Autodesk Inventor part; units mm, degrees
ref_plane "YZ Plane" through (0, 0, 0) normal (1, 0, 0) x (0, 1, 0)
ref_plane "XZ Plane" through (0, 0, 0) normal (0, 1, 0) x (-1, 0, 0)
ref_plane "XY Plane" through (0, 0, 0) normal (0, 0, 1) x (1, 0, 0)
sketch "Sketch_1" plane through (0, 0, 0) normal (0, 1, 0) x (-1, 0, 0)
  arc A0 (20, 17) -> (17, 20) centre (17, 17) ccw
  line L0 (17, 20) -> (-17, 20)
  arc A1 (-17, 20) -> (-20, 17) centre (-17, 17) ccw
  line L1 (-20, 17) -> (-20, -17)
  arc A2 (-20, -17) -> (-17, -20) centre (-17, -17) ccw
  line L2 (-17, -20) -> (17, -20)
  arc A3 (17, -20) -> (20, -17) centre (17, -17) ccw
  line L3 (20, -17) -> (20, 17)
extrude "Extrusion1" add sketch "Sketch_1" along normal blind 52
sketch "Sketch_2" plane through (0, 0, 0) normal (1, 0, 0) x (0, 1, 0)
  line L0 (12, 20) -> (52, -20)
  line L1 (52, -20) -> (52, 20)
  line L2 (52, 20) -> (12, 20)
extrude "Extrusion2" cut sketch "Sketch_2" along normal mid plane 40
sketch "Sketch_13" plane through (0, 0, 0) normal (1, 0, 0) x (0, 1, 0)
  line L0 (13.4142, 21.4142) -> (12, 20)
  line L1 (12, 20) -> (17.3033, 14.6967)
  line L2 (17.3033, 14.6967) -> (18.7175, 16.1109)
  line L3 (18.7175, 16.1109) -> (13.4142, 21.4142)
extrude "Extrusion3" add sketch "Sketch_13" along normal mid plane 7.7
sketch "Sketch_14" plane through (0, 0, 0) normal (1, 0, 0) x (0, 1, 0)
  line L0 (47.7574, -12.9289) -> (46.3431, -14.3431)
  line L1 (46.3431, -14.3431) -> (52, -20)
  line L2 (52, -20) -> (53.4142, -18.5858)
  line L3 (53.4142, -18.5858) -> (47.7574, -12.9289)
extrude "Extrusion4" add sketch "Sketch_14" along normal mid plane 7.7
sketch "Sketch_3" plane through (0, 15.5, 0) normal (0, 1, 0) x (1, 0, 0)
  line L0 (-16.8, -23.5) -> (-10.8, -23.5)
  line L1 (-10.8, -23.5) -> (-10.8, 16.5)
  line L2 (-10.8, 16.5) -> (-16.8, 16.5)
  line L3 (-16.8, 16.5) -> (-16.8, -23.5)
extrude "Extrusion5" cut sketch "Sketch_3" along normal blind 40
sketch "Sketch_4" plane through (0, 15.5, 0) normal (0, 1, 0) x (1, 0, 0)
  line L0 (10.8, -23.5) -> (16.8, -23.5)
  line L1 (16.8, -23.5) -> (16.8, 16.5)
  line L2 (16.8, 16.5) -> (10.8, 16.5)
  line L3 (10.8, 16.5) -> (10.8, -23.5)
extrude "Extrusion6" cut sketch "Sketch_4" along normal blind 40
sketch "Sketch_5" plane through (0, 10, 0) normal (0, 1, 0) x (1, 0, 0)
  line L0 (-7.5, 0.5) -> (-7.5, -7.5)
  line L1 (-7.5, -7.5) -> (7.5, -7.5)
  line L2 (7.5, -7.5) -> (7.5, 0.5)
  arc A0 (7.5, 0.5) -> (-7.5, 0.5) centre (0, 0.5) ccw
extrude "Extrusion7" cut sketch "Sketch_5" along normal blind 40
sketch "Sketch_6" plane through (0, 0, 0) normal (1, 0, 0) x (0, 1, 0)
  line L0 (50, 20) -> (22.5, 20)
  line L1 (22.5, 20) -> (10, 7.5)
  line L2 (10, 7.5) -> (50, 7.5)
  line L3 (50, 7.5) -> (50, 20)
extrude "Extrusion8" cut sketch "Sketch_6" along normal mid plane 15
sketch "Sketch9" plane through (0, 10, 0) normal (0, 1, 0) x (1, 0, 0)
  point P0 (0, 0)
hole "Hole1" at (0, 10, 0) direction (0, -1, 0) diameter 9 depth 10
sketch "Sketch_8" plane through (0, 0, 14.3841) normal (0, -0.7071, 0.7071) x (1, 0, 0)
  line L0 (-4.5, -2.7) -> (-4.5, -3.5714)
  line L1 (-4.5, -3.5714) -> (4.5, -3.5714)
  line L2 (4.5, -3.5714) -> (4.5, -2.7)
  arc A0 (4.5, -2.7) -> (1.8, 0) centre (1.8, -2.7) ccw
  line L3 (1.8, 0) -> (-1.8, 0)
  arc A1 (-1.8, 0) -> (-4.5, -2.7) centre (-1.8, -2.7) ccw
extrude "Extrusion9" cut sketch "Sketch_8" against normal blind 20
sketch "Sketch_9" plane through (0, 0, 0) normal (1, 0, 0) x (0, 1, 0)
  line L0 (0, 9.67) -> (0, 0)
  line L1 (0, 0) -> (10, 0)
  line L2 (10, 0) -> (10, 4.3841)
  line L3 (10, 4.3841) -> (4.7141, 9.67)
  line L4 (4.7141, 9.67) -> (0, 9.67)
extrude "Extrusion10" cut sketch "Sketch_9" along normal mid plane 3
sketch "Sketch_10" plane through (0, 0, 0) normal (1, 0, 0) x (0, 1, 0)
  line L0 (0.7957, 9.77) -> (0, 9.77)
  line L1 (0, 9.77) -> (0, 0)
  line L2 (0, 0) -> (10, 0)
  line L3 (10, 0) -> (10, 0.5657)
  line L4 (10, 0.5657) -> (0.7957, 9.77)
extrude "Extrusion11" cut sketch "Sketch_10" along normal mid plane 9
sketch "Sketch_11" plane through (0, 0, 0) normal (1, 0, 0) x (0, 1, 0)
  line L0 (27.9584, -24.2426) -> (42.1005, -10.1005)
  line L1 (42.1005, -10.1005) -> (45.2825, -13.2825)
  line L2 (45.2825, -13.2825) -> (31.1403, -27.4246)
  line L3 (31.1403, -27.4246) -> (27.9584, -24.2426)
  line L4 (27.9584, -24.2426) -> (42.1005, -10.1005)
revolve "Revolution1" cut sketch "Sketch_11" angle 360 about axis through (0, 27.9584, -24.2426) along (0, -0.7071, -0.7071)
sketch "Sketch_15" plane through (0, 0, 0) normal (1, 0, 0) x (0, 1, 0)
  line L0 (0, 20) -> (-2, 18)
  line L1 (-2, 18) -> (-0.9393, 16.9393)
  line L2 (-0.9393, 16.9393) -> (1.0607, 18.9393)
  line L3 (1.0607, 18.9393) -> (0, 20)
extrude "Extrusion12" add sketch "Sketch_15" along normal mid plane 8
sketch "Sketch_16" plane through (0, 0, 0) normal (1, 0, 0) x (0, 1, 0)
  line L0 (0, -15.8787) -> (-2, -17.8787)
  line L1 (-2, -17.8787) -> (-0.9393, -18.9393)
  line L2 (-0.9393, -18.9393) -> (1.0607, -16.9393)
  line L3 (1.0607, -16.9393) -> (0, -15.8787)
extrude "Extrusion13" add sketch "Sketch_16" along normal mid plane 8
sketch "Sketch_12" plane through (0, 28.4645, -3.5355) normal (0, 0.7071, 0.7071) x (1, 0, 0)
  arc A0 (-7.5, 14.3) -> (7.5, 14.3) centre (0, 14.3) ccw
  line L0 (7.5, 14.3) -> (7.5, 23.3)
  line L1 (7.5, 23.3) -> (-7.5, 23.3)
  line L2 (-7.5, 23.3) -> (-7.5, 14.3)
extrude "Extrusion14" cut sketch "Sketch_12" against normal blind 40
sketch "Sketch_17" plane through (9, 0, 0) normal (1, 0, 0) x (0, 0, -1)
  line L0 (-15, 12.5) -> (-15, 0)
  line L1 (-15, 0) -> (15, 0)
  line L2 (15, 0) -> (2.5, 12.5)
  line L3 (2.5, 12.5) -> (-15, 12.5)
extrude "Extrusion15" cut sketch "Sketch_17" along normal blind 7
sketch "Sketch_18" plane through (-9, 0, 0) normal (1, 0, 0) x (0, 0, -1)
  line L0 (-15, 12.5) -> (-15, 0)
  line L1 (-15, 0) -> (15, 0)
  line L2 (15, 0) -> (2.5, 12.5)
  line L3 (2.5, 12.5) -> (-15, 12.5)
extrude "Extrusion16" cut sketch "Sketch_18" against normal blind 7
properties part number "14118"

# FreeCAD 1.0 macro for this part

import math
import FreeCAD as App
import Part
import Sketcher
from FreeCAD import Vector
Q = App.Units.Quantity


def add_polygon(sketch, points):
    """Adds a closed chain of lines whose ends are joined by coincident constraints."""
    first, n = sketch.GeometryCount, len(points)
    for a, b in zip(points, points[1:] + points[:1]):
        sketch.addGeometry(Part.LineSegment(App.Vector(*a, 0), App.Vector(*b, 0)), False)
    for i in range(n):
        sketch.addConstraint(Sketcher.Constraint("Coincident", first + i, 2, first + (i + 1) % n, 1))

doc = App.newDocument("Part")
body = doc.addObject("PartDesign::Body", "Body")

sketch1 = body.newObject("Sketcher::SketchObject", "Sketch")
sketch1.AttachmentSupport = (doc.getObject("XZ_Plane"), [""])
sketch1.MapMode = "FlatFace"
sketch1.addGeometry(Part.LineSegment(Vector(-20, -17, 0), Vector(-20, 17, 0)), False)
sketch1.addGeometry(Part.ArcOfCircle(Part.Circle(Vector(-17, 17, 0), Vector(0, 0, 1), 3), math.radians(90), math.radians(180)), False)
sketch1.addGeometry(Part.LineSegment(Vector(-17, 20, 0), Vector(17, 20, 0)), False)
sketch1.addGeometry(Part.ArcOfCircle(Part.Circle(Vector(17, 17, 0), Vector(0, 0, 1), 3), math.radians(0), math.radians(90)), False)
sketch1.addGeometry(Part.LineSegment(Vector(20, 17, 0), Vector(20, -17, 0)), False)
sketch1.addGeometry(Part.ArcOfCircle(Part.Circle(Vector(17, -17, 0), Vector(0, 0, 1), 3), math.radians(-90), math.radians(0)), False)
sketch1.addGeometry(Part.LineSegment(Vector(17, -20, 0), Vector(-17, -20, 0)), False)
sketch1.addGeometry(Part.ArcOfCircle(Part.Circle(Vector(-17, -17, 0), Vector(0, 0, 1), 3), math.radians(180), math.radians(270)), False)
sketch1.addConstraint(Sketcher.Constraint("Tangent", 0, 2, 1, 2))
sketch1.addConstraint(Sketcher.Constraint("Tangent", 1, 1, 2, 1))
sketch1.addConstraint(Sketcher.Constraint("Tangent", 2, 2, 3, 2))
sketch1.addConstraint(Sketcher.Constraint("Tangent", 3, 1, 4, 1))
sketch1.addConstraint(Sketcher.Constraint("Tangent", 4, 2, 5, 2))
sketch1.addConstraint(Sketcher.Constraint("Tangent", 5, 1, 6, 1))
sketch1.addConstraint(Sketcher.Constraint("Tangent", 6, 2, 7, 2))
sketch1.addConstraint(Sketcher.Constraint("Tangent", 7, 1, 0, 1))
sketch1.addConstraint(Sketcher.Constraint("Vertical", 0))
sketch1.addConstraint(Sketcher.Constraint("Horizontal", 2))
sketch1.addConstraint(Sketcher.Constraint("Vertical", 4))
sketch1.addConstraint(Sketcher.Constraint("Horizontal", 6))
sketch1.addConstraint(Sketcher.Constraint("Equal", 1, 3))
sketch1.addConstraint(Sketcher.Constraint("Equal", 3, 5))
sketch1.addConstraint(Sketcher.Constraint("Equal", 5, 7))
sketch1.addConstraint(Sketcher.Constraint("Symmetric", 1, 3, 5, 3, -1, 1))
sketch1.addConstraint(Sketcher.Constraint("Equal", 6, 0))
sketch1.addConstraint(Sketcher.Constraint("Radius", 1, Q("3 mm")))
sketch1.addConstraint(Sketcher.Constraint("DistanceX", 2, 1, 2, 2, Q("34 mm")))
pad1 = body.newObject("PartDesign::Pad", "Pad")
pad1.Profile = sketch1
pad1.Length = 52
pad1.Reversed = True

sketch2 = body.newObject("Sketcher::SketchObject", "Sketch001")
sketch2.AttachmentSupport = (doc.getObject("YZ_Plane"), [""])
sketch2.MapMode = "FlatFace"
add_polygon(sketch2, [(52, 20), (12, 20), (52, -20)])
sketch2.addConstraint(Sketcher.Constraint("Horizontal", 0))
sketch2.addConstraint(Sketcher.Constraint("Vertical", 2))
sketch2.addConstraint(Sketcher.Constraint("Equal", 0, 2))
sketch2.addConstraint(Sketcher.Constraint("DistanceX", 0, 2, 0, 1, Q("40 mm")))
sketch2.addConstraint(Sketcher.Constraint("DistanceX", -1, 1, 0, 2, Q("12 mm")))
sketch2.addConstraint(Sketcher.Constraint("DistanceY", -1, 1, 0, 2, Q("20 mm")))
pocket1 = body.newObject("PartDesign::Pocket", "Pocket")
pocket1.Profile = sketch2
pocket1.Length = 40
pocket1.Midplane = True

sketch3 = body.newObject("Sketcher::SketchObject", "Sketch002")
sketch3.AttachmentSupport = (doc.getObject("YZ_Plane"), [""])
sketch3.MapMode = "FlatFace"
add_polygon(sketch3, [(18.7175, 16.1109), (13.4142, 21.4142), (12, 20), (17.3033, 14.6967)])
sketch3.addConstraint(Sketcher.Constraint("Perpendicular", 0, 1))
sketch3.addConstraint(Sketcher.Constraint("Perpendicular", 1, 2))
sketch3.addConstraint(Sketcher.Constraint("Perpendicular", 2, 3))
sketch3.addConstraint(Sketcher.Constraint("Angle", 0, Q("135 deg")))
sketch3.addConstraint(Sketcher.Constraint("Distance", 1, Q("2 mm")))
sketch3.addConstraint(Sketcher.Constraint("DistanceX", -1, 1, 1, 2, Q("12 mm")))
sketch3.addConstraint(Sketcher.Constraint("DistanceY", -1, 1, 1, 2, Q("20 mm")))
sketch3.addConstraint(Sketcher.Constraint("Distance", 0, Q("7.5 mm")))
pad2 = body.newObject("PartDesign::Pad", "Pad001")
pad2.Profile = sketch3
pad2.Length = 7.7
pad2.Midplane = True

sketch4 = body.newObject("Sketcher::SketchObject", "Sketch003")
sketch4.AttachmentSupport = (doc.getObject("YZ_Plane"), [""])
sketch4.MapMode = "FlatFace"
add_polygon(sketch4, [(53.4142, -18.5858), (47.7574, -12.9289), (46.3431, -14.3431), (52, -20)])
sketch4.addConstraint(Sketcher.Constraint("Perpendicular", 0, 1))
sketch4.addConstraint(Sketcher.Constraint("Perpendicular", 1, 2))
sketch4.addConstraint(Sketcher.Constraint("Perpendicular", 2, 3))
sketch4.addConstraint(Sketcher.Constraint("Angle", 0, Q("134.9995 deg")))
sketch4.addConstraint(Sketcher.Constraint("Distance", 0, Q("8 mm")))
sketch4.addConstraint(Sketcher.Constraint("Distance", 1, Q("2 mm")))
sketch4.addConstraint(Sketcher.Constraint("DistanceX", -1, 1, 2, 2, Q("52 mm")))
sketch4.addConstraint(Sketcher.Constraint("DistanceY", 2, 2, -1, 1, Q("20 mm")))
pad3 = body.newObject("PartDesign::Pad", "Pad002")
pad3.Profile = sketch4
pad3.Length = 7.7
pad3.Midplane = True

sketch5 = body.newObject("Sketcher::SketchObject", "Sketch004")
sketch5.AttachmentSupport = (doc.getObject("XZ_Plane"), [""])
sketch5.MapMode = "FlatFace"
sketch5.AttachmentOffset = App.Placement(Vector(0, 0, -15.5), App.Rotation())
add_polygon(sketch5, [(-16.8, -16.5), (-16.8, 23.5), (-10.8, 23.5), (-10.8, -16.5)])
sketch5.addConstraint(Sketcher.Constraint("Vertical", 0))
sketch5.addConstraint(Sketcher.Constraint("Horizontal", 1))
sketch5.addConstraint(Sketcher.Constraint("Vertical", 2))
sketch5.addConstraint(Sketcher.Constraint("Horizontal", 3))
sketch5.addConstraint(Sketcher.Constraint("DistanceX", 1, 1, 1, 2, Q("6 mm")))
sketch5.addConstraint(Sketcher.Constraint("DistanceY", 0, 1, 0, 2, Q("40 mm")))
sketch5.addConstraint(Sketcher.Constraint("DistanceX", 0, 2, -1, 1, Q("16.8 mm")))
sketch5.addConstraint(Sketcher.Constraint("DistanceY", -1, 1, 0, 2, Q("23.5 mm")))
pocket2 = body.newObject("PartDesign::Pocket", "Pocket001")
pocket2.Profile = sketch5
pocket2.Length = 40

sketch6 = body.newObject("Sketcher::SketchObject", "Sketch005")
sketch6.AttachmentSupport = (doc.getObject("XZ_Plane"), [""])
sketch6.MapMode = "FlatFace"
sketch6.AttachmentOffset = App.Placement(Vector(0, 0, -15.5), App.Rotation())
add_polygon(sketch6, [(10.8, -16.5), (10.8, 23.5), (16.8, 23.5), (16.8, -16.5)])
sketch6.addConstraint(Sketcher.Constraint("Vertical", 0))
sketch6.addConstraint(Sketcher.Constraint("Horizontal", 1))
sketch6.addConstraint(Sketcher.Constraint("Vertical", 2))
sketch6.addConstraint(Sketcher.Constraint("Horizontal", 3))
sketch6.addConstraint(Sketcher.Constraint("DistanceX", 1, 1, 1, 2, Q("6 mm")))
sketch6.addConstraint(Sketcher.Constraint("DistanceY", 0, 1, 0, 2, Q("40 mm")))
sketch6.addConstraint(Sketcher.Constraint("DistanceX", -1, 1, 0, 2, Q("10.8 mm")))
sketch6.addConstraint(Sketcher.Constraint("DistanceY", -1, 1, 0, 2, Q("23.5 mm")))
pocket3 = body.newObject("PartDesign::Pocket", "Pocket002")
pocket3.Profile = sketch6
pocket3.Length = 40

sketch7 = body.newObject("Sketcher::SketchObject", "Sketch006")
sketch7.AttachmentSupport = (doc.getObject("XZ_Plane"), [""])
sketch7.MapMode = "FlatFace"
sketch7.AttachmentOffset = App.Placement(Vector(0, 0, -10), App.Rotation())
sketch7.addGeometry(Part.ArcOfCircle(Part.Circle(Vector(0, -0.5, 0), Vector(0, 0, 1), 7.5), math.radians(180), math.radians(360)), False)
sketch7.addGeometry(Part.LineSegment(Vector(-7.5, -0.5, 0), Vector(-7.5, 7.5, 0)), False)
sketch7.addGeometry(Part.LineSegment(Vector(-7.5, 7.5, 0), Vector(7.5, 7.5, 0)), False)
sketch7.addGeometry(Part.LineSegment(Vector(7.5, 7.5, 0), Vector(7.5, -0.5, 0)), False)
sketch7.addConstraint(Sketcher.Constraint("Tangent", 0, 1, 1, 1))
sketch7.addConstraint(Sketcher.Constraint("Coincident", 1, 2, 2, 1))
sketch7.addConstraint(Sketcher.Constraint("Coincident", 2, 2, 3, 1))
sketch7.addConstraint(Sketcher.Constraint("Tangent", 3, 2, 0, 2))
sketch7.addConstraint(Sketcher.Constraint("Vertical", 1))
sketch7.addConstraint(Sketcher.Constraint("Horizontal", 2))
sketch7.addConstraint(Sketcher.Constraint("Vertical", 3))
sketch7.addConstraint(Sketcher.Constraint("PointOnObject", 0, 3, -2))
sketch7.addConstraint(Sketcher.Constraint("Radius", 0, Q("7.5 mm")))
sketch7.addConstraint(Sketcher.Constraint("DistanceY", 1, 1, 1, 2, Q("8 mm")))
sketch7.addConstraint(Sketcher.Constraint("DistanceY", 0, 3, -1, 1, Q("0.5 mm")))
pocket4 = body.newObject("PartDesign::Pocket", "Pocket003")
pocket4.Profile = sketch7
pocket4.Length = 40

sketch8 = body.newObject("Sketcher::SketchObject", "Sketch007")
sketch8.AttachmentSupport = (doc.getObject("YZ_Plane"), [""])
sketch8.MapMode = "FlatFace"
add_polygon(sketch8, [(50, 7.5), (50, 20), (22.5, 20), (10, 7.5)])
sketch8.addConstraint(Sketcher.Constraint("Vertical", 0))
sketch8.addConstraint(Sketcher.Constraint("Horizontal", 1))
sketch8.addConstraint(Sketcher.Constraint("Horizontal", 3))
sketch8.addConstraint(Sketcher.Constraint("DistanceX", 3, 1, 3, 2, Q("40 mm")))
sketch8.addConstraint(Sketcher.Constraint("Angle", 2, Q("-135 deg")))
sketch8.addConstraint(Sketcher.Constraint("DistanceX", 1, 2, 1, 1, Q("27.5 mm")))
sketch8.addConstraint(Sketcher.Constraint("DistanceX", -1, 1, 0, 2, Q("50 mm")))
sketch8.addConstraint(Sketcher.Constraint("DistanceY", -1, 1, 0, 2, Q("20 mm")))
pocket5 = body.newObject("PartDesign::Pocket", "Pocket004")
pocket5.Profile = sketch8
pocket5.Length = 15
pocket5.Midplane = True

sketch9 = body.newObject("Sketcher::SketchObject", "Sketch008")
sketch9.AttachmentSupport = (doc.getObject("XZ_Plane"), [""])
sketch9.MapMode = "FlatFace"
sketch9.AttachmentOffset = App.Placement(Vector(0, 0, -10), App.Rotation())
sketch9.addGeometry(Part.Circle(Vector(0, 0, 0), Vector(0, 0, 1), 4.5), False)
sketch9.addConstraint(Sketcher.Constraint("Coincident", 0, 3, -1, 1))
sketch9.addConstraint(Sketcher.Constraint("Diameter", 0, Q("9 mm")))
doc.recompute()
hole = body.newObject("PartDesign::Hole", "Hole")
hole.Profile = sketch9
hole.ThreadType = "None"
hole.Diameter = 9
hole.DepthType = "Dimension"
hole.Depth = 10
hole.DrillPoint = "Flat"
hole.Reversed = True

sketch10 = body.newObject("Sketcher::SketchObject", "Sketch009")
sketch10.Placement = App.Placement(Vector(0, 0, 14.3841), App.Rotation(Vector(1, 0, 0), Vector(0, 0.707106781, 0.707106781), Vector(0, -0.707106781, 0.707106781), "ZXY"))
sketch10.addGeometry(Part.ArcOfCircle(Part.Circle(Vector(-1.8, -2.7, 0), Vector(0, 0, 1), 2.7), math.radians(90), math.radians(180)), False)
sketch10.addGeometry(Part.LineSegment(Vector(-4.5, -2.7, 0), Vector(-4.5, -3.5714, 0)), False)
sketch10.addGeometry(Part.LineSegment(Vector(-4.5, -3.5714, 0), Vector(4.5, -3.5714, 0)), False)
sketch10.addGeometry(Part.LineSegment(Vector(4.5, -3.5714, 0), Vector(4.5, -2.7, 0)), False)
sketch10.addGeometry(Part.ArcOfCircle(Part.Circle(Vector(1.8, -2.7, 0), Vector(0, 0, 1), 2.7), math.radians(0), math.radians(90)), False)
sketch10.addGeometry(Part.LineSegment(Vector(1.8, 0, 0), Vector(-1.8, 0, 0)), False)
sketch10.addConstraint(Sketcher.Constraint("Tangent", 0, 2, 1, 1))
sketch10.addConstraint(Sketcher.Constraint("Coincident", 1, 2, 2, 1))
sketch10.addConstraint(Sketcher.Constraint("Coincident", 2, 2, 3, 1))
sketch10.addConstraint(Sketcher.Constraint("Tangent", 3, 2, 4, 1))
sketch10.addConstraint(Sketcher.Constraint("Tangent", 4, 2, 5, 1))
sketch10.addConstraint(Sketcher.Constraint("Tangent", 5, 2, 0, 1))
sketch10.addConstraint(Sketcher.Constraint("Vertical", 1))
sketch10.addConstraint(Sketcher.Constraint("Horizontal", 2))
sketch10.addConstraint(Sketcher.Constraint("Vertical", 3))
sketch10.addConstraint(Sketcher.Constraint("Horizontal", 5))
sketch10.addConstraint(Sketcher.Constraint("Equal", 0, 4))
sketch10.addConstraint(Sketcher.Constraint("Symmetric", 4, 2, 5, 2, -1, 1))
sketch10.addConstraint(Sketcher.Constraint("Radius", 0, Q("2.7 mm")))
sketch10.addConstraint(Sketcher.Constraint("DistanceX", 2, 1, 2, 2, Q("9 mm")))
sketch10.addConstraint(Sketcher.Constraint("DistanceY", 1, 2, 1, 1, Q("0.8714 mm")))
pocket6 = body.newObject("PartDesign::Pocket", "Pocket005")
pocket6.Profile = sketch10
pocket6.Length = 20

sketch11 = body.newObject("Sketcher::SketchObject", "Sketch010")
sketch11.AttachmentSupport = (doc.getObject("YZ_Plane"), [""])
sketch11.MapMode = "FlatFace"
add_polygon(sketch11, [(4.7141, 9.67), (0, 9.67), (0, 0), (10, 0), (10, 4.3841)])
sketch11.addConstraint(Sketcher.Constraint("Horizontal", 0))
sketch11.addConstraint(Sketcher.Constraint("Vertical", 1))
sketch11.addConstraint(Sketcher.Constraint("Horizontal", 2))
sketch11.addConstraint(Sketcher.Constraint("Vertical", 3))
sketch11.addConstraint(Sketcher.Constraint("Coincident", 1, 2, -1, 1))
sketch11.addConstraint(Sketcher.Constraint("DistanceX", 2, 1, 2, 2, Q("10 mm")))
sketch11.addConstraint(Sketcher.Constraint("Angle", 4, Q("135 deg")))
sketch11.addConstraint(Sketcher.Constraint("DistanceY", 1, 2, 1, 1, Q("9.67 mm")))
sketch11.addConstraint(Sketcher.Constraint("DistanceX", 0, 2, 0, 1, Q("4.714 mm")))
pocket7 = body.newObject("PartDesign::Pocket", "Pocket006")
pocket7.Profile = sketch11
pocket7.Length = 3
pocket7.Midplane = True

sketch12 = body.newObject("Sketcher::SketchObject", "Sketch011")
sketch12.AttachmentSupport = (doc.getObject("YZ_Plane"), [""])
sketch12.MapMode = "FlatFace"
add_polygon(sketch12, [(10, 0.5657), (0.7957, 9.77), (0, 9.77), (0, 0), (10, 0)])
sketch12.addConstraint(Sketcher.Constraint("Horizontal", 1))
sketch12.addConstraint(Sketcher.Constraint("Vertical", 2))
sketch12.addConstraint(Sketcher.Constraint("Horizontal", 3))
sketch12.addConstraint(Sketcher.Constraint("Vertical", 4))
sketch12.addConstraint(Sketcher.Constraint("Coincident", 2, 2, -1, 1))
sketch12.addConstraint(Sketcher.Constraint("DistanceX", 3, 1, 3, 2, Q("10 mm")))
sketch12.addConstraint(Sketcher.Constraint("Angle", 0, Q("135 deg")))
sketch12.addConstraint(Sketcher.Constraint("DistanceY", 2, 2, 2, 1, Q("9.77 mm")))
sketch12.addConstraint(Sketcher.Constraint("DistanceX", 1, 2, 1, 1, Q("0.7957 mm")))
pocket8 = body.newObject("PartDesign::Pocket", "Pocket007")
pocket8.Profile = sketch12
pocket8.Length = 9
pocket8.Midplane = True

sketch13 = body.newObject("Sketcher::SketchObject", "Sketch012")
sketch13.AttachmentSupport = (doc.getObject("YZ_Plane"), [""])
sketch13.MapMode = "FlatFace"
add_polygon(sketch13, [(42.1005, -10.1005), (27.9584, -24.2426), (31.1403, -27.4246), (45.2825, -13.2825)])
sketch13.addGeometry(Part.LineSegment(Vector(42.1005, -10.1005, 0), Vector(27.95835, -24.24265, 0)), True)
sketch13.addConstraint(Sketcher.Constraint("Coincident", 4, 1, 3, 2))
sketch13.addConstraint(Sketcher.Constraint("Coincident", 4, 2, 0, 2))
sketch13.addConstraint(Sketcher.Constraint("Perpendicular", 0, 1))
sketch13.addConstraint(Sketcher.Constraint("Perpendicular", 1, 2))
sketch13.addConstraint(Sketcher.Constraint("Perpendicular", 2, 3))
sketch13.addConstraint(Sketcher.Constraint("Angle", 0, Q("-135 deg")))
sketch13.addConstraint(Sketcher.Constraint("Distance", 0, Q("20 mm")))
sketch13.addConstraint(Sketcher.Constraint("Distance", 1, Q("4.5 mm")))
sketch13.addConstraint(Sketcher.Constraint("DistanceX", -1, 1, 0, 2, Q("27.9584 mm")))
sketch13.addConstraint(Sketcher.Constraint("DistanceY", 0, 2, -1, 1, Q("24.2426 mm")))
groove = body.newObject("PartDesign::Groove", "Groove")
groove.Profile = sketch13
groove.ReferenceAxis = (sketch13, ["Axis0"])
groove.Angle = 360

sketch14 = body.newObject("Sketcher::SketchObject", "Sketch013")
sketch14.AttachmentSupport = (doc.getObject("YZ_Plane"), [""])
sketch14.MapMode = "FlatFace"
add_polygon(sketch14, [(1.0607, 18.9393), (0, 20), (-2, 18), (-0.9393, 16.9393)])
sketch14.addConstraint(Sketcher.Constraint("PointOnObject", 0, 2, -2))
sketch14.addConstraint(Sketcher.Constraint("Perpendicular", 0, 1))
sketch14.addConstraint(Sketcher.Constraint("Perpendicular", 1, 2))
sketch14.addConstraint(Sketcher.Constraint("Perpendicular", 2, 3))
sketch14.addConstraint(Sketcher.Constraint("Angle", 0, Q("135 deg")))
sketch14.addConstraint(Sketcher.Constraint("DistanceY", -1, 1, 0, 2, Q("20 mm")))
sketch14.addConstraint(Sketcher.Constraint("DistanceX", 1, 2, -1, 1, Q("2 mm")))
sketch14.addConstraint(Sketcher.Constraint("Distance", 0, Q("1.5 mm")))
pad4 = body.newObject("PartDesign::Pad", "Pad003")
pad4.Profile = sketch14
pad4.Length = 8
pad4.Midplane = True

sketch15 = body.newObject("Sketcher::SketchObject", "Sketch014")
sketch15.AttachmentSupport = (doc.getObject("YZ_Plane"), [""])
sketch15.MapMode = "FlatFace"
add_polygon(sketch15, [(1.0607, -16.9393), (0, -15.8787), (-2, -17.8787), (-0.9393, -18.9393)])
sketch15.addConstraint(Sketcher.Constraint("PointOnObject", 0, 2, -2))
sketch15.addConstraint(Sketcher.Constraint("Perpendicular", 0, 1))
sketch15.addConstraint(Sketcher.Constraint("Perpendicular", 1, 2))
sketch15.addConstraint(Sketcher.Constraint("Perpendicular", 2, 3))
sketch15.addConstraint(Sketcher.Constraint("Angle", 1, Q("-135 deg")))
sketch15.addConstraint(Sketcher.Constraint("DistanceX", 1, 2, -1, 1, Q("2 mm")))
sketch15.addConstraint(Sketcher.Constraint("Distance", 0, Q("1.5 mm")))
sketch15.addConstraint(Sketcher.Constraint("DistanceY", 0, 2, -1, 1, Q("15.8787 mm")))
pad5 = body.newObject("PartDesign::Pad", "Pad004")
pad5.Profile = sketch15
pad5.Length = 8
pad5.Midplane = True

sketch16 = body.newObject("Sketcher::SketchObject", "Sketch015")
sketch16.Placement = App.Placement(Vector(0, 28.4645, -3.5355), App.Rotation(Vector(1, 0, 0), Vector(0, 0.707106781, -0.707106781), Vector(0, 0.707106781, 0.707106781), "ZXY"))
sketch16.addGeometry(Part.LineSegment(Vector(-7.5, 23.3, 0), Vector(-7.5, 14.3, 0)), False)
sketch16.addGeometry(Part.ArcOfCircle(Part.Circle(Vector(0, 14.3, 0), Vector(0, 0, 1), 7.5), math.radians(180), math.radians(360)), False)
sketch16.addGeometry(Part.LineSegment(Vector(7.5, 14.3, 0), Vector(7.5, 23.3, 0)), False)
sketch16.addGeometry(Part.LineSegment(Vector(7.5, 23.3, 0), Vector(-7.5, 23.3, 0)), False)
sketch16.addConstraint(Sketcher.Constraint("Tangent", 0, 2, 1, 1))
sketch16.addConstraint(Sketcher.Constraint("Tangent", 1, 2, 2, 1))
sketch16.addConstraint(Sketcher.Constraint("Coincident", 2, 2, 3, 1))
sketch16.addConstraint(Sketcher.Constraint("Coincident", 3, 2, 0, 1))
sketch16.addConstraint(Sketcher.Constraint("Vertical", 0))
sketch16.addConstraint(Sketcher.Constraint("Vertical", 2))
sketch16.addConstraint(Sketcher.Constraint("Horizontal", 3))
sketch16.addConstraint(Sketcher.Constraint("PointOnObject", 1, 3, -2))
sketch16.addConstraint(Sketcher.Constraint("Radius", 1, Q("7.5 mm")))
sketch16.addConstraint(Sketcher.Constraint("DistanceY", 0, 2, 0, 1, Q("9 mm")))
sketch16.addConstraint(Sketcher.Constraint("DistanceY", -1, 1, 1, 3, Q("14.3 mm")))
pocket9 = body.newObject("PartDesign::Pocket", "Pocket008")
pocket9.Profile = sketch16
pocket9.Length = 40

sketch17 = body.newObject("Sketcher::SketchObject", "Sketch016")
sketch17.AttachmentSupport = (doc.getObject("YZ_Plane"), [""])
sketch17.MapMode = "FlatFace"
sketch17.AttachmentOffset = App.Placement(Vector(0, 0, 9), App.Rotation())
add_polygon(sketch17, [(12.5, -2.5), (12.5, 15), (0, 15), (0, -15)])
sketch17.addConstraint(Sketcher.Constraint("Vertical", 0))
sketch17.addConstraint(Sketcher.Constraint("Horizontal", 1))
sketch17.addConstraint(Sketcher.Constraint("Vertical", 2))
sketch17.addConstraint(Sketcher.Constraint("Symmetric", 1, 2, 2, 2, -1, 1))
sketch17.addConstraint(Sketcher.Constraint("DistanceY", 2, 2, 2, 1, Q("30 mm")))
sketch17.addConstraint(Sketcher.Constraint("Angle", 3, Q("45 deg")))
sketch17.addConstraint(Sketcher.Constraint("DistanceX", 1, 2, 1, 1, Q("12.5 mm")))
pocket10 = body.newObject("PartDesign::Pocket", "Pocket009")
pocket10.Profile = sketch17
pocket10.Length = 7
pocket10.Reversed = True

sketch18 = body.newObject("Sketcher::SketchObject", "Sketch017")
sketch18.AttachmentSupport = (doc.getObject("YZ_Plane"), [""])
sketch18.MapMode = "FlatFace"
sketch18.AttachmentOffset = App.Placement(Vector(0, 0, -9), App.Rotation())
add_polygon(sketch18, [(12.5, -2.5), (12.5, 15), (0, 15), (0, -15)])
sketch18.addConstraint(Sketcher.Constraint("Vertical", 0))
sketch18.addConstraint(Sketcher.Constraint("Horizontal", 1))
sketch18.addConstraint(Sketcher.Constraint("Vertical", 2))
sketch18.addConstraint(Sketcher.Constraint("Symmetric", 1, 2, 2, 2, -1, 1))
sketch18.addConstraint(Sketcher.Constraint("DistanceY", 2, 2, 2, 1, Q("30 mm")))
sketch18.addConstraint(Sketcher.Constraint("Angle", 3, Q("45 deg")))
sketch18.addConstraint(Sketcher.Constraint("DistanceX", 1, 2, 1, 1, Q("12.5 mm")))
pocket11 = body.newObject("PartDesign::Pocket", "Pocket010")
pocket11.Profile = sketch18
pocket11.Length = 7

doc.recompute()
